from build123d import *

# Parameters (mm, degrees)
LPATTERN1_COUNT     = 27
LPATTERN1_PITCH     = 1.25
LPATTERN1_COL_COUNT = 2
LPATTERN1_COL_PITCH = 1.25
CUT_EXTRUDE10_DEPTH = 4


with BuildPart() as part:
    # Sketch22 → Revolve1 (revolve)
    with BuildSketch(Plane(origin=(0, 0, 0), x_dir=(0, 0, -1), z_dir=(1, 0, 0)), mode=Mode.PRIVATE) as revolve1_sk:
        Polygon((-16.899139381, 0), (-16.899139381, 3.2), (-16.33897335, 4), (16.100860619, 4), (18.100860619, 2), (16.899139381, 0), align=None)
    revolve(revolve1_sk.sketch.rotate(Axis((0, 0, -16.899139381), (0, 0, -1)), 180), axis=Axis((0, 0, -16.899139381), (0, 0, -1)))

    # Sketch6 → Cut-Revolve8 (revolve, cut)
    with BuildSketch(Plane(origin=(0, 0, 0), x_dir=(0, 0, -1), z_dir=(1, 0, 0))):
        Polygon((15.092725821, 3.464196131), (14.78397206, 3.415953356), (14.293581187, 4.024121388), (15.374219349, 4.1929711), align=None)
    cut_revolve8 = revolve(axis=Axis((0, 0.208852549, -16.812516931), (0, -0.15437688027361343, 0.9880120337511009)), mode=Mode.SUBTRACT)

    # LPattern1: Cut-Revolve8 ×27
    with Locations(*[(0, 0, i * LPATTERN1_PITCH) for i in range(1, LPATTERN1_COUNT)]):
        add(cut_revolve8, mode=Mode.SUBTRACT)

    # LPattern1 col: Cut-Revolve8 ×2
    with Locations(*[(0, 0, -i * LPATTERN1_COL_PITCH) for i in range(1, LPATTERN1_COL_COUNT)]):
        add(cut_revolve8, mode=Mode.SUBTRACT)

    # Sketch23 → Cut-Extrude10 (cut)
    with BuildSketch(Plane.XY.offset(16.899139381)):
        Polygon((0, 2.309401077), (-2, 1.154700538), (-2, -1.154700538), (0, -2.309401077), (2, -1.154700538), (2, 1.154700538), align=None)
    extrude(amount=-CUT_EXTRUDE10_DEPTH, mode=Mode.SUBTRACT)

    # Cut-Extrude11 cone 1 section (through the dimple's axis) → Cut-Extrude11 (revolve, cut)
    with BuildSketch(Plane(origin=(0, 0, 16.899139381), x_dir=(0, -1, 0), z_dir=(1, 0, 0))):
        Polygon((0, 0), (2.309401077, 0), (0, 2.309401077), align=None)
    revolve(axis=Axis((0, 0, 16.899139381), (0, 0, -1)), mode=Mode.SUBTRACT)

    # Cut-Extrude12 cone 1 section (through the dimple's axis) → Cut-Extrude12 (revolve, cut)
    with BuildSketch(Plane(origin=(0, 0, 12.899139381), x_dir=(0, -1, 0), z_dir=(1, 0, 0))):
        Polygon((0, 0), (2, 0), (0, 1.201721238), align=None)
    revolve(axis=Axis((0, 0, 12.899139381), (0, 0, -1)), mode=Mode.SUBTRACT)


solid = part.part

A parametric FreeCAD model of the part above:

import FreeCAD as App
import Part
import Sketcher
from FreeCAD import Vector
Q = App.Units.Quantity

doc = App.newDocument("Part")
body = doc.addObject("PartDesign::Body", "Body")

# Sketch on YZ plane
sketch1 = body.newObject("Sketcher::SketchObject", "Sketch")
sketch1.AttachmentSupport = (doc.getObject("YZ_Plane"), [""])
sketch1.MapMode = "FlatFace"
sketch1.addGeometry(Part.LineSegment(Vector(3.2, 16.9, 0), Vector(0, 16.9, 0)), False)
sketch1.addGeometry(Part.LineSegment(Vector(0, 16.9, 0), Vector(0, -16.9, 0)), False)
sketch1.addGeometry(Part.LineSegment(Vector(0, -16.9, 0), Vector(2, -18.1, 0)), False)
sketch1.addGeometry(Part.LineSegment(Vector(2, -18.1, 0), Vector(4, -16.1, 0)), False)
sketch1.addGeometry(Part.LineSegment(Vector(4, -16.1, 0), Vector(4, 16.3, 0)), False)
sketch1.addGeometry(Part.LineSegment(Vector(4, 16.3, 0), Vector(3.2, 16.9, 0)), False)
sketch1.addConstraint(Sketcher.Constraint("Coincident", 0, 2, 1, 1))
sketch1.addConstraint(Sketcher.Constraint("Coincident", 1, 2, 2, 1))
sketch1.addConstraint(Sketcher.Constraint("Coincident", 2, 2, 3, 1))
sketch1.addConstraint(Sketcher.Constraint("Coincident", 3, 2, 4, 1))
sketch1.addConstraint(Sketcher.Constraint("Coincident", 4, 2, 5, 1))
sketch1.addConstraint(Sketcher.Constraint("Coincident", 5, 2, 0, 1))
sketch1.addConstraint(Sketcher.Constraint("Horizontal", 0))
sketch1.addConstraint(Sketcher.Constraint("Vertical", 1))
sketch1.addConstraint(Sketcher.Constraint("Vertical", 4))
sketch1.addConstraint(Sketcher.Constraint("Symmetric", 0, 2, 1, 2, -1, 1))
sketch1.addConstraint(Sketcher.Constraint("Angle", 2, Q("-31 deg")))
sketch1.addConstraint(Sketcher.Constraint("Angle", 3, Q("45 deg")))
sketch1.addConstraint(Sketcher.Constraint("Angle", 5, Q("145 deg")))
sketch1.addConstraint(Sketcher.Constraint("DistanceX", 0, 2, 0, 1, Q("3.2 mm")))
sketch1.addConstraint(Sketcher.Constraint("DistanceX", -1, 1, 2, 2, Q("2 mm")))
sketch1.addConstraint(Sketcher.Constraint("DistanceX", -1, 1, 3, 2, Q("4 mm")))
sketch1.addConstraint(Sketcher.Constraint("DistanceY", 2, 2, 0, 2, Q("35 mm")))
revolution = body.newObject("PartDesign::Revolution", "Revolution")
revolution.Profile = sketch1
revolution.ReferenceAxis = (sketch1, ["V_Axis"])
revolution.Angle = 360

# Sketch on YZ plane
sketch2 = body.newObject("Sketcher::SketchObject", "Sketch001")
sketch2.AttachmentSupport = (doc.getObject("YZ_Plane"), [""])
sketch2.MapMode = "FlatFace"
sketch2.addGeometry(Part.LineSegment(Vector(3.42, -14.78, 0), Vector(3.46, -15.09, 0)), False)
sketch2.addGeometry(Part.LineSegment(Vector(3.46, -15.09, 0), Vector(4.19, -15.37, 0)), False)
sketch2.addGeometry(Part.LineSegment(Vector(4.19, -15.37, 0), Vector(4.02, -14.29, 0)), False)
sketch2.addGeometry(Part.LineSegment(Vector(4.02, -14.29, 0), Vector(3.42, -14.78, 0)), False)
sketch2.addGeometry(Part.LineSegment(Vector(0.08, -16.02, 0), Vector(-0.08, -14.94, 0)), True)  # axis
sketch2.addConstraint(Sketcher.Constraint("Coincident", 0, 2, 1, 1))
sketch2.addConstraint(Sketcher.Constraint("Coincident", 1, 2, 2, 1))
sketch2.addConstraint(Sketcher.Constraint("Coincident", 2, 2, 3, 1))
sketch2.addConstraint(Sketcher.Constraint("Coincident", 3, 2, 0, 1))
sketch2.addConstraint(Sketcher.Constraint("Parallel", 0, 2))
sketch2.addConstraint(Sketcher.Constraint("Parallel", 2, 4))
sketch2.addConstraint(Sketcher.Constraint("Equal", 1, 3))
sketch2.addConstraint(Sketcher.Constraint("Equal", 2, 4))
sketch2.addConstraint(Sketcher.Constraint("Distance", 0, Q("0.3125 mm")))
sketch2.addConstraint(Sketcher.Constraint("DistanceY", 4, 1, 2, 2, Q("1.722599 mm")))
sketch2.addConstraint(Sketcher.Constraint("Distance", 1, Q("0.78125 mm")))
sketch2.addConstraint(Sketcher.Constraint("Distance", 2, Q("1.09375 mm")))
sketch2.addConstraint(Sketcher.Constraint("DistanceX", -1, 1, 1, 2, Q("4.192971 mm")))
sketch2.addConstraint(Sketcher.Constraint("DistanceY", 1, 2, -1, 1, Q("15.374219 mm")))
sketch2.addConstraint(Sketcher.Constraint("DistanceX", -1, 1, 2, 2, Q("4.024121 mm")))
sketch2.addConstraint(Sketcher.Constraint("DistanceX", 4, 1, 0, 2, Q("3.379771 mm")))
groove = body.newObject("PartDesign::Groove", "Groove")
groove.Profile = sketch2
groove.ReferenceAxis = (sketch2, ["Axis0"])
groove.Angle = 360
doc.recompute()

linearpattern = body.newObject("PartDesign::LinearPattern", "LinearPattern")
linearpattern.Originals = [groove]
linearpattern.Direction = (doc.getObject("Z_Axis"), [""])
linearpattern.Mode = "offset"
linearpattern.Offset = 1.25
linearpattern.Occurrences = 27
body.Tip = linearpattern
doc.recompute()

linearpattern2 = body.newObject("PartDesign::LinearPattern", "LinearPattern001")
linearpattern2.Originals = [groove]
linearpattern2.Direction = (doc.getObject("Z_Axis"), [""])
linearpattern2.Mode = "offset"
linearpattern2.Offset = 1.25
linearpattern2.Occurrences = 2
linearpattern2.Reversed = True
body.Tip = linearpattern2

# Sketch on XY plane
sketch3 = body.newObject("Sketcher::SketchObject", "Sketch002")
sketch3.AttachmentSupport = (doc.getObject("XY_Plane"), [""])
sketch3.MapMode = "FlatFace"
sketch3.AttachmentOffset = App.Placement(Vector(0, 0, 16.899139), App.Rotation())
sketch3.addGeometry(Part.LineSegment(Vector(0, 2.3, 0), Vector(-2, 1.2, 0)), False)
sketch3.addGeometry(Part.LineSegment(Vector(-2, 1.2, 0), Vector(-2, -1.2, 0)), False)
sketch3.addGeometry(Part.LineSegment(Vector(-2, -1.2, 0), Vector(0, -2.3, 0)), False)
sketch3.addGeometry(Part.LineSegment(Vector(0, -2.3, 0), Vector(2, -1.2, 0)), False)
sketch3.addGeometry(Part.LineSegment(Vector(2, -1.2, 0), Vector(2, 1.2, 0)), False)
sketch3.addGeometry(Part.LineSegment(Vector(2, 1.2, 0), Vector(0, 2.3, 0)), False)
sketch3.addConstraint(Sketcher.Constraint("Coincident", 0, 2, 1, 1))
sketch3.addConstraint(Sketcher.Constraint("Coincident", 1, 2, 2, 1))
sketch3.addConstraint(Sketcher.Constraint("Coincident", 2, 2, 3, 1))
sketch3.addConstraint(Sketcher.Constraint("Coincident", 3, 2, 4, 1))
sketch3.addConstraint(Sketcher.Constraint("Coincident", 4, 2, 5, 1))
sketch3.addConstraint(Sketcher.Constraint("Coincident", 5, 2, 0, 1))
sketch3.addConstraint(Sketcher.Constraint("Vertical", 1))
sketch3.addConstraint(Sketcher.Constraint("Vertical", 4))
sketch3.addConstraint(Sketcher.Constraint("Symmetric", 0, 2, 3, 2, -1, 1))
sketch3.addConstraint(Sketcher.Constraint("Symmetric", 2, 2, 5, 2, -1, 1))
sketch3.addConstraint(Sketcher.Constraint("PointOnObject", 2, 2, -2))
sketch3.addConstraint(Sketcher.Constraint("Parallel", 2, 5))
sketch3.addConstraint(Sketcher.Constraint("Horizontal", 1, 2, 3, 2))
sketch3.addConstraint(Sketcher.Constraint("Angle", 0, Q("-150 deg")))
sketch3.addConstraint(Sketcher.Constraint("DistanceX", 0, 2, -1, 1, Q("2 mm")))
sketch3.addConstraint(Sketcher.Constraint("DistanceY", 1, 2, 1, 1, Q("2.309401 mm")))
pocket1 = body.newObject("PartDesign::Pocket", "Pocket")
pocket1.Profile = sketch3
pocket1.Length = 4

# Sketch on YZ plane
sketch4 = body.newObject("Sketcher::SketchObject", "Sketch003")
sketch4.AttachmentSupport = (doc.getObject("YZ_Plane"), [""])
sketch4.MapMode = "FlatFace"
sketch4.addGeometry(Part.LineSegment(Vector(0, 16.9, 0), Vector(-2.3, 16.9, 0)), False)
sketch4.addGeometry(Part.LineSegment(Vector(-2.3, 16.9, 0), Vector(0, 14.6, 0)), False)
sketch4.addGeometry(Part.LineSegment(Vector(0, 14.6, 0), Vector(0, 16.9, 0)), False)
sketch4.addConstraint(Sketcher.Constraint("Coincident", 0, 2, 1, 1))
sketch4.addConstraint(Sketcher.Constraint("Coincident", 1, 2, 2, 1))
sketch4.addConstraint(Sketcher.Constraint("Coincident", 2, 2, 0, 1))
sketch4.addConstraint(Sketcher.Constraint("Horizontal", 0))
sketch4.addConstraint(Sketcher.Constraint("Vertical", 2))
sketch4.addConstraint(Sketcher.Constraint("PointOnObject", 1, 2, -2))
sketch4.addConstraint(Sketcher.Constraint("Equal", 0, 2))
sketch4.addConstraint(Sketcher.Constraint("DistanceX", 0, 2, 0, 1, Q("2.309401 mm")))
sketch4.addConstraint(Sketcher.Constraint("DistanceY", -1, 1, 0, 2, Q("16.899139 mm")))
groove2 = body.newObject("PartDesign::Groove", "Groove001")
groove2.Profile = sketch4
groove2.ReferenceAxis = (sketch4, ["V_Axis"])
groove2.Angle = 360

# Sketch on YZ plane
sketch5 = body.newObject("Sketcher::SketchObject", "Sketch004")
sketch5.AttachmentSupport = (doc.getObject("YZ_Plane"), [""])
sketch5.MapMode = "FlatFace"
sketch5.addGeometry(Part.LineSegment(Vector(0, 12.9, 0), Vector(-2, 12.9, 0)), False)
sketch5.addGeometry(Part.LineSegment(Vector(-2, 12.9, 0), Vector(0, 11.7, 0)), False)
sketch5.addGeometry(Part.LineSegment(Vector(0, 11.7, 0), Vector(0, 12.9, 0)), False)
sketch5.addConstraint(Sketcher.Constraint("Coincident", 0, 2, 1, 1))
sketch5.addConstraint(Sketcher.Constraint("Coincident", 1, 2, 2, 1))
sketch5.addConstraint(Sketcher.Constraint("Coincident", 2, 2, 0, 1))
sketch5.addConstraint(Sketcher.Constraint("Horizontal", 0))
sketch5.addConstraint(Sketcher.Constraint("Vertical", 2))
sketch5.addConstraint(Sketcher.Constraint("PointOnObject", 1, 2, -2))
sketch5.addConstraint(Sketcher.Constraint("DistanceX", 0, 2, 0, 1, Q("2 mm")))
sketch5.addConstraint(Sketcher.Constraint("Angle", 1, Q("-31 deg")))
sketch5.addConstraint(Sketcher.Constraint("DistanceY", -1, 1, 0, 2, Q("12.899139 mm")))
groove3 = body.newObject("PartDesign::Groove", "Groove002")
groove3.Profile = sketch5
groove3.ReferenceAxis = (sketch5, ["V_Axis"])
groove3.Angle = 360

doc.recompute()
